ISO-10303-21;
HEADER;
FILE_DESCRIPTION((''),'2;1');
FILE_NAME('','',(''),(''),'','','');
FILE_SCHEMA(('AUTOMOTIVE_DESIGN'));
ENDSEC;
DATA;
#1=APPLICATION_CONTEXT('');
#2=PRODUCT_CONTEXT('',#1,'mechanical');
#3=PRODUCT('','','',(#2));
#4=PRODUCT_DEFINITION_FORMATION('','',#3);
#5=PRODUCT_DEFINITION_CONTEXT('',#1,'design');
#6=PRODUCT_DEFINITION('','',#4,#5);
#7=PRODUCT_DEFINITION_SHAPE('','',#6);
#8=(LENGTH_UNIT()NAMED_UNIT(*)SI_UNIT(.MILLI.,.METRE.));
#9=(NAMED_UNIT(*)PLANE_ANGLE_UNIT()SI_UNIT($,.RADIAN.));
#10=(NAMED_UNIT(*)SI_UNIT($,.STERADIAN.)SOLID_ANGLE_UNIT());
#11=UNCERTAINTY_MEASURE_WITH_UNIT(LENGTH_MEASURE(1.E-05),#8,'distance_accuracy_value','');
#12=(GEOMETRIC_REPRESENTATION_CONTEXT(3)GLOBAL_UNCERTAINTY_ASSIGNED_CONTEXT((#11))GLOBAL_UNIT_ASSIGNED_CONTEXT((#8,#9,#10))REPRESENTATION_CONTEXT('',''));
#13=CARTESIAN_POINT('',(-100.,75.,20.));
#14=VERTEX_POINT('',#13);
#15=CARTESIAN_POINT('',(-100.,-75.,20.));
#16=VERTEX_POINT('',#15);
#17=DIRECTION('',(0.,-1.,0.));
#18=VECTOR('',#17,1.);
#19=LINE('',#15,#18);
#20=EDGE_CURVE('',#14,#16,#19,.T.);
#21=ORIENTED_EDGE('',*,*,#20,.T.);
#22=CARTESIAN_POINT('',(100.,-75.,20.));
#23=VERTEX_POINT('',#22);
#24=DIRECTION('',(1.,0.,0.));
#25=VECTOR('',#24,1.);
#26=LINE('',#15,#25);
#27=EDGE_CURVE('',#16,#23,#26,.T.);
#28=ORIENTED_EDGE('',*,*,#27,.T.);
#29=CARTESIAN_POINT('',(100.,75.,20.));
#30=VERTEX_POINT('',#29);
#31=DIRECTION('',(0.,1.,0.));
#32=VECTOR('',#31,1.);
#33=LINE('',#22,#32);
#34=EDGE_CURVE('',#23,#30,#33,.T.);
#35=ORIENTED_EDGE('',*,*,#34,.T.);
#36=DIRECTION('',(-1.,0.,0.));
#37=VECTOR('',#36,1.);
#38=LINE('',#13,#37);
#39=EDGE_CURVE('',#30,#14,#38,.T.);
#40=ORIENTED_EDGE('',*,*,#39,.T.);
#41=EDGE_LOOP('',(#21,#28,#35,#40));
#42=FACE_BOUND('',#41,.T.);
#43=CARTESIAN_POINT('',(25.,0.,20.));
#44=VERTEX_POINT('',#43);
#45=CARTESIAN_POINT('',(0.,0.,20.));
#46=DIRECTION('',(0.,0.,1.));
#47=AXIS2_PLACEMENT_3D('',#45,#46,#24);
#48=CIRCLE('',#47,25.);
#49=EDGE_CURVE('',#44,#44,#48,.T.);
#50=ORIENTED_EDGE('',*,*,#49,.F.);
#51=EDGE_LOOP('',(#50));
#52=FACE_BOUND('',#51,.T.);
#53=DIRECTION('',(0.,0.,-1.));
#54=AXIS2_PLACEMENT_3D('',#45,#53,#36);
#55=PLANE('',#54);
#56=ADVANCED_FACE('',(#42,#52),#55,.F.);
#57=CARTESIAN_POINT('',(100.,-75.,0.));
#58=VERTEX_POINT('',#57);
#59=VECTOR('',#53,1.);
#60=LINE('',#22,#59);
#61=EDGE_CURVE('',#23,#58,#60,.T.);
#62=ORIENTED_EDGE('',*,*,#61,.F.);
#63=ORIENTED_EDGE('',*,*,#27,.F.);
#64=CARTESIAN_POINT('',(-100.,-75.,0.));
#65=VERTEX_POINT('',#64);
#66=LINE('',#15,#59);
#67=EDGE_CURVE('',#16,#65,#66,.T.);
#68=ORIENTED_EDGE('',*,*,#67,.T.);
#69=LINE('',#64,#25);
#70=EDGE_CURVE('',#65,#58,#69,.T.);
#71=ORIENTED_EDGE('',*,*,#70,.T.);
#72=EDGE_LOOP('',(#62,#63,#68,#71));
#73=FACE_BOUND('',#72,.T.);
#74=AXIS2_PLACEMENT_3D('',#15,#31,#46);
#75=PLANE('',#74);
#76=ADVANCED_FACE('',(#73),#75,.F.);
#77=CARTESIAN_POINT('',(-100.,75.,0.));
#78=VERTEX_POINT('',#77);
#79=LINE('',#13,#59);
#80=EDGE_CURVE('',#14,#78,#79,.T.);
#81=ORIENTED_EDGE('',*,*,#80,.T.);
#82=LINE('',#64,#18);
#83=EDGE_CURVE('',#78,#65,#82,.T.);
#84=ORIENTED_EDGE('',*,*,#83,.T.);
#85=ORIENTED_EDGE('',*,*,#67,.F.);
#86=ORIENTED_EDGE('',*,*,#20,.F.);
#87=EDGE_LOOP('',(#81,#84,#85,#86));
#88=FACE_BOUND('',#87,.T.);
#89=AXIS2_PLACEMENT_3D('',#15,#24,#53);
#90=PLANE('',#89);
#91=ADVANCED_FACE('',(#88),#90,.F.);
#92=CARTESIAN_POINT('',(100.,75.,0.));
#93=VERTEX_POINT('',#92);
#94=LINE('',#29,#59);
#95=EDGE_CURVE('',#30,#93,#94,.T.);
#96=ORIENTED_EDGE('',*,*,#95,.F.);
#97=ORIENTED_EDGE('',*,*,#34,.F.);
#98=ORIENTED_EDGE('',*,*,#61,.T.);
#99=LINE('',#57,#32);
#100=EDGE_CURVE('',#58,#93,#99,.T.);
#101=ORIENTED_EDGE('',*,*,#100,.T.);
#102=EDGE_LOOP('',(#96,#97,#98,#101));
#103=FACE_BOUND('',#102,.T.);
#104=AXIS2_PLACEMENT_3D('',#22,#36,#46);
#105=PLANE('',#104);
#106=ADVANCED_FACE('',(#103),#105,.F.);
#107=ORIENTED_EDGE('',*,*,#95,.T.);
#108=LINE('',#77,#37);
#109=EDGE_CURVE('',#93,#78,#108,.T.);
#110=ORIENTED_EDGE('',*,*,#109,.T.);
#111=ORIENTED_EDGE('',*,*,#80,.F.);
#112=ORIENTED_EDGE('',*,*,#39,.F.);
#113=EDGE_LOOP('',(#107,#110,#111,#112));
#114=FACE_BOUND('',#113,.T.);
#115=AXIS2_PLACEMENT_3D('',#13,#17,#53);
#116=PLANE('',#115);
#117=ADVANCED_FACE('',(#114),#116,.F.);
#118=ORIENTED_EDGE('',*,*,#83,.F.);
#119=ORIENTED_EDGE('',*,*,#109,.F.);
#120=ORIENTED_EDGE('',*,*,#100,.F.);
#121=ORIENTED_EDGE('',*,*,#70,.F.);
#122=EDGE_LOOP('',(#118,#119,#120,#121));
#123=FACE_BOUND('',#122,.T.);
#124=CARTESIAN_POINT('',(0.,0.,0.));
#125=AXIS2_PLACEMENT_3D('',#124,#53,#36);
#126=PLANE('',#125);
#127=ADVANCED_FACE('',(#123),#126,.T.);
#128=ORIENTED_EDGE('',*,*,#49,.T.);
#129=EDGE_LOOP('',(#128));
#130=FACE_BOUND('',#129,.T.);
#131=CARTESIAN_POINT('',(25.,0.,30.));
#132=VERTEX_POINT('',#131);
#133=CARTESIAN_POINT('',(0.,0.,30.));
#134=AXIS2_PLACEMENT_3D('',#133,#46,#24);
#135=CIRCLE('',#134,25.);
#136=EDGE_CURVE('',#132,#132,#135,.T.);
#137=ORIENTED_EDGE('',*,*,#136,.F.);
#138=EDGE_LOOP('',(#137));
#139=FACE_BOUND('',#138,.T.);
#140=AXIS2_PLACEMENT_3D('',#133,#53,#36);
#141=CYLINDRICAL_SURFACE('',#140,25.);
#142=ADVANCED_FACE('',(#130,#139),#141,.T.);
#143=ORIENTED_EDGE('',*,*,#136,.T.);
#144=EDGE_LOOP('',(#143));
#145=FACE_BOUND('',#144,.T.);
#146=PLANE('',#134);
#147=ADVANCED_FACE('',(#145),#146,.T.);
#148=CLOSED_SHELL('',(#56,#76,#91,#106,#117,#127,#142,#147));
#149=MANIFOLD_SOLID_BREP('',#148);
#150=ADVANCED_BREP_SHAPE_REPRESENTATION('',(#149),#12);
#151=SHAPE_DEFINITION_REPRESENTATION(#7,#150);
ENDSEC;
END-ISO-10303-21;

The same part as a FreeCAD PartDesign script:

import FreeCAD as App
import Part
import Sketcher

V = App.Vector
Q = App.Units.Quantity


def add_polygon(sketch, points):
    """Adds a closed chain of lines whose ends are joined by coincident constraints."""
    first, n = sketch.GeometryCount, len(points)
    for a, b in zip(points, points[1:] + points[:1]):
        sketch.addGeometry(Part.LineSegment(App.Vector(*a, 0), App.Vector(*b, 0)), False)
    for i in range(n):
        sketch.addConstraint(Sketcher.Constraint("Coincident", first + i, 2, first + (i + 1) % n, 1))

doc = App.newDocument("Part")
body = doc.addObject("PartDesign::Body", "Body")

# Sketch on XY plane
sketch1 = body.newObject("Sketcher::SketchObject", "Sketch")
sketch1.AttachmentSupport = (doc.getObject("XY_Plane"), [""])
sketch1.MapMode = "FlatFace"
add_polygon(sketch1, [(-100, 75), (-100, -75), (100, -75), (100, 75)])  # lines 0-3
sketch1.addConstraint([
    Sketcher.Constraint("Vertical", 0),
    Sketcher.Constraint("Horizontal", 1),
    Sketcher.Constraint("Vertical", 2),
    Sketcher.Constraint("Horizontal", 3),
    Sketcher.Constraint("Symmetric", 0, 2, 2, 2, -1, 1),
    Sketcher.Constraint("DistanceX", 1, 1, 1, 2, Q("200 mm")),
    Sketcher.Constraint("DistanceY", 0, 2, 0, 1, Q("150 mm")),
])
pad1 = body.newObject("PartDesign::Pad", "Pad")
pad1.Profile = sketch1
pad1.Length = 20

# Sketch on XY plane
sketch2 = body.newObject("Sketcher::SketchObject", "Sketch001")
sketch2.AttachmentSupport = (doc.getObject("XY_Plane"), [""])
sketch2.MapMode = "FlatFace"
sketch2.AttachmentOffset = App.Placement(V(0, 0, 20), App.Rotation())
sketch2.addGeometry(Part.Circle(V(0, 0, 0), V(0, 0, 1), 25), False)
sketch2.addConstraint([
    Sketcher.Constraint("Coincident", 0, 3, -1, 1),
    Sketcher.Constraint("Diameter", 0, Q("50 mm")),
])
pad2 = body.newObject("PartDesign::Pad", "Pad001")
pad2.Profile = sketch2
pad2.Length = 10

doc.recompute()
